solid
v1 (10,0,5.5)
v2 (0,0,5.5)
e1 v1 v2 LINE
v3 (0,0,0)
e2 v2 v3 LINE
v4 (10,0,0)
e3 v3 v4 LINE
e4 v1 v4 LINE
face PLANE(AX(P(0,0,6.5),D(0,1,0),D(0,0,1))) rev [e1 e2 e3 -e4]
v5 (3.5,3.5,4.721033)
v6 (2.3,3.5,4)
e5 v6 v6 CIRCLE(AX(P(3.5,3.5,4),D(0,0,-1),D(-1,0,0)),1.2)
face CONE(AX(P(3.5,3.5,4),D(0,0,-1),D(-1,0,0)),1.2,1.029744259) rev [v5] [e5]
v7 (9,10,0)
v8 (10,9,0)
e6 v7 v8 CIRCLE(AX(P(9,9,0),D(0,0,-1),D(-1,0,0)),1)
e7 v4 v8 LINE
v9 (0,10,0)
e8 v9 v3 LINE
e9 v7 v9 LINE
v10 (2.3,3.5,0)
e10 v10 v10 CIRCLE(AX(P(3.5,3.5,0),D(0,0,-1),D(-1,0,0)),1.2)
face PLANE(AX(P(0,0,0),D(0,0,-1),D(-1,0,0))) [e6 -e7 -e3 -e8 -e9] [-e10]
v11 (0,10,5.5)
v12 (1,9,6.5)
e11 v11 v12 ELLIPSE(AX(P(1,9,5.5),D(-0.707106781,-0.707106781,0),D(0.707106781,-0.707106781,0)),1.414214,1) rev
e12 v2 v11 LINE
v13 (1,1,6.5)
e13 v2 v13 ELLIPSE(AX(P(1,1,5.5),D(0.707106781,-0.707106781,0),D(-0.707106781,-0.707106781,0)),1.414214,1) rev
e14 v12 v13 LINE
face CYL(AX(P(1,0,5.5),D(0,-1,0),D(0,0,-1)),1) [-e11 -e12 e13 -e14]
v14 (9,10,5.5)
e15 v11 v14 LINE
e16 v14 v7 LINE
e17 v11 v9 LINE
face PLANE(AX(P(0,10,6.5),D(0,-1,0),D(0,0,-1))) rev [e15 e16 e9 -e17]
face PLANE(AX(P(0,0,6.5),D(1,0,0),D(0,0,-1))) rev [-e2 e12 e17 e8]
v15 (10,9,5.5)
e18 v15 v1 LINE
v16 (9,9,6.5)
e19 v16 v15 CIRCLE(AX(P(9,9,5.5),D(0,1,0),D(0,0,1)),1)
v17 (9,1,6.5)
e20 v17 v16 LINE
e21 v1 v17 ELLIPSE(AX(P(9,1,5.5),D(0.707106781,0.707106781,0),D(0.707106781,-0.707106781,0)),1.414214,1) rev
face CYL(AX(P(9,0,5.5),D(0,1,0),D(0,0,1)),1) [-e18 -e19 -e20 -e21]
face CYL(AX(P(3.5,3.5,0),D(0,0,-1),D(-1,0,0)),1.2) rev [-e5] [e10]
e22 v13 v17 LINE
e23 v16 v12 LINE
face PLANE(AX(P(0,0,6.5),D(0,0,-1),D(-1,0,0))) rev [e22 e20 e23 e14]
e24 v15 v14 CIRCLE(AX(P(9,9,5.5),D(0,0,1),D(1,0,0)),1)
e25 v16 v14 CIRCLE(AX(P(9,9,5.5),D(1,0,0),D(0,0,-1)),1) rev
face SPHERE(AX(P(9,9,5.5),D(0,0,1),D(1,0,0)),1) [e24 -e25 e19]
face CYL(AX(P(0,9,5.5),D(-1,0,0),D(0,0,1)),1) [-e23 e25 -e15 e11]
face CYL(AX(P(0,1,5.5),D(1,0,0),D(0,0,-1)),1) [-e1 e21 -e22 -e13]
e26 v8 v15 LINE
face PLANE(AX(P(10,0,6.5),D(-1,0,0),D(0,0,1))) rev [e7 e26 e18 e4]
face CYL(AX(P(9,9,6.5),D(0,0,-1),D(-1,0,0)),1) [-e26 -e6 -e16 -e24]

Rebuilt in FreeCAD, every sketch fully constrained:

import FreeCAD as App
import Part
import Sketcher

V = App.Vector
Q = App.Units.Quantity


def edges_at(feature, points):
    """Names of the edges that pass closest to the given points."""
    edges = feature.Shape.Edges
    near = lambda p: min(range(len(edges)), key=lambda i: edges[i].distToShape(Part.Vertex(*p))[0])
    return sorted({f"Edge{near(p) + 1}" for p in points})

doc = App.newDocument("Part")
body = doc.addObject("PartDesign::Body", "Body")

# Sketch on XY plane
sketch1 = doc.addObject("Sketcher::SketchObject", "Sketch")
body.addObject(sketch1)
sketch1.AttachmentSupport = (doc.XY_Plane, [""])
sketch1.MapMode = "FlatFace"
sketch1.addGeometry([
    Part.LineSegment(V(0, 10, 0), V(0, 0, 0)),
    Part.LineSegment(V(0, 0, 0), V(10, 0, 0)),
    Part.LineSegment(V(10, 0, 0), V(10, 10, 0)),
    Part.LineSegment(V(10, 10, 0), V(0, 10, 0)),
], False)
sketch1.addConstraint([
    Sketcher.Constraint("Coincident", 0, 2, 1, 1),
    Sketcher.Constraint("Coincident", 1, 2, 2, 1),
    Sketcher.Constraint("Coincident", 2, 2, 3, 1),
    Sketcher.Constraint("Coincident", 3, 2, 0, 1),
    Sketcher.Constraint("Vertical", 0),
    Sketcher.Constraint("Horizontal", 1),
    Sketcher.Constraint("Vertical", 2),
    Sketcher.Constraint("Horizontal", 3),
    Sketcher.Constraint("Coincident", 0, 2, -1, 1),
    Sketcher.Constraint("Equal", 3, 0),
    Sketcher.Constraint("DistanceX", 1, 1, 1, 2, Q("10 mm")),
])
pad1 = doc.addObject("PartDesign::Pad", "Pad")
body.addObject(pad1)
pad1.Profile = sketch1
pad1.Length = 6.5
doc.recompute()

fillet = doc.addObject("PartDesign::Fillet", "Fillet")
body.addObject(fillet)
fillet.Base = (pad1, edges_at(pad1, [
    (10, 5, 6.5),
    (5, 10, 6.5),
    (0, 5, 6.5),
    (5, 0, 6.5),
    (10, 10, 3.25),
]))
fillet.Radius = 1

# Sketch on XY plane
sketch2 = doc.addObject("Sketcher::SketchObject", "Sketch001")
body.addObject(sketch2)
sketch2.AttachmentSupport = (doc.XY_Plane, [""])
sketch2.MapMode = "FlatFace"
sketch2.addGeometry(Part.Circle(V(3.5, 3.5, 0), V(0, 0, 1), 1.2), False)
sketch2.addConstraint([
    Sketcher.Constraint("Diameter", 0, Q("2.4 mm")),
    Sketcher.Constraint("DistanceX", -1, 1, 0, 3, Q("3.5 mm")),
    Sketcher.Constraint("DistanceY", -1, 1, 0, 3, Q("3.5 mm")),
])
doc.recompute()
hole = doc.addObject("PartDesign::Hole", "Hole")
body.addObject(hole)
hole.Profile = sketch2
hole.ThreadType = "None"
hole.Diameter = 2.4
hole.DepthType = "Dimension"
hole.Depth = 4
hole.DrillPoint = "Angled"
hole.DrillPointAngle = 118
hole.Reversed = True

doc.recompute()
